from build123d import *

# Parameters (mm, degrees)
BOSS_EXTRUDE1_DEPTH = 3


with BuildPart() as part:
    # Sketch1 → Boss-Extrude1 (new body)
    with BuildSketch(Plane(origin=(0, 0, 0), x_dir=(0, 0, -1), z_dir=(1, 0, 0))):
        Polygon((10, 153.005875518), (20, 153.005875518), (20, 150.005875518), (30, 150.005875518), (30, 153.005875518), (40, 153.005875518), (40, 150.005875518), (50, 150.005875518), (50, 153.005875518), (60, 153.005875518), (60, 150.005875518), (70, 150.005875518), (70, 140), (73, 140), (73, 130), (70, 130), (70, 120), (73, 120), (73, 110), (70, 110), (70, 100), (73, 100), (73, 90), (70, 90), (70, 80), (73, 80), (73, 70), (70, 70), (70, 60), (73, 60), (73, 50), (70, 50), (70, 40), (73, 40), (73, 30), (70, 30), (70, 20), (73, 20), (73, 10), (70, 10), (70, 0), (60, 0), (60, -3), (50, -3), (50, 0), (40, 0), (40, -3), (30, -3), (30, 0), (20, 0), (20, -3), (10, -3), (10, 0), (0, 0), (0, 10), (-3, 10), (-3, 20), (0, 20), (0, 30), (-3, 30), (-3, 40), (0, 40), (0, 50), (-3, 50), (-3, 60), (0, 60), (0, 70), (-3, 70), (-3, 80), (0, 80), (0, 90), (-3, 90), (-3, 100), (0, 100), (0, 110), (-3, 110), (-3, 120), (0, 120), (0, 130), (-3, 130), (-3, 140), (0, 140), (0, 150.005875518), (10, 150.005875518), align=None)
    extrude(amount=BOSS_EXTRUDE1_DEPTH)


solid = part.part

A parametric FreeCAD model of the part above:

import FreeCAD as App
import Part
import Sketcher

V = App.Vector
Q = App.Units.Quantity


def add_polygon(sketch, points):
    """Adds a closed chain of lines whose ends are joined by coincident constraints."""
    first, n = sketch.GeometryCount, len(points)
    for a, b in zip(points, points[1:] + points[:1]):
        sketch.addGeometry(Part.LineSegment(App.Vector(*a, 0), App.Vector(*b, 0)), False)
    for i in range(n):
        sketch.addConstraint(Sketcher.Constraint("Coincident", first + i, 2, first + (i + 1) % n, 1))

doc = App.newDocument("Part")
body = doc.addObject("PartDesign::Body", "Body")

# Sketch on YZ plane
sketch1 = body.newObject("Sketcher::SketchObject", "Sketch")
sketch1.AttachmentSupport = (doc.getObject("YZ_Plane"), [""])
sketch1.MapMode = "FlatFace"
add_polygon(sketch1, [(153, -20), (153, -10), (150, -10), (150, 0), (140, 0), (140, 3), (130, 3), (130, 0), (120, 0), (120, 3), (110, 3), (110, 0), (100, 0), (100, 3), (90, 3), (90, 0), (80, 0), (80, 3), (70, 3), (70, 0), (60, 0), (60, 3), (50, 3), (50, 0), (40, 0), (40, 3), (30, 3), (30, 0), (20, 0), (20, 3), (10, 3), (10, 0), (0, 0), (0, -10), (-3, -10), (-3, -20), (0, -20), (0, -30), (-3, -30), (-3, -40), (0, -40), (0, -50), (-3, -50), (-3, -60), (0, -60), (0, -70), (10, -70), (10, -73), (20, -73), (20, -70), (30, -70), (30, -73), (40, -73), (40, -70), (50, -70), (50, -73), (60, -73), (60, -70), (70, -70), (70, -73), (80, -73), (80, -70), (90, -70), (90, -73), (100, -73), (100, -70), (110, -70), (110, -73), (120, -73), (120, -70), (130, -70), (130, -73), (140, -73), (140, -70), (150, -70), (150, -60), (153, -60), (153, -50), (150, -50), (150, -40), (153, -40), (153, -30), (150, -30), (150, -20)])  # lines 0-83
sketch1.addConstraint([
    Sketcher.Constraint("Vertical", 0),
    Sketcher.Constraint("Horizontal", 1),
    Sketcher.Constraint("Vertical", 2),
    Sketcher.Constraint("Horizontal", 3),
    Sketcher.Constraint("Vertical", 4),
    Sketcher.Constraint("Horizontal", 5),
    Sketcher.Constraint("Vertical", 6),
    Sketcher.Constraint("Horizontal", 7),
    Sketcher.Constraint("Vertical", 8),
    Sketcher.Constraint("Horizontal", 9),
    Sketcher.Constraint("Vertical", 10),
    Sketcher.Constraint("Horizontal", 11),
    Sketcher.Constraint("Vertical", 12),
    Sketcher.Constraint("Horizontal", 13),
    Sketcher.Constraint("Vertical", 14),
    Sketcher.Constraint("Horizontal", 15),
    Sketcher.Constraint("Vertical", 16),
    Sketcher.Constraint("Horizontal", 17),
    Sketcher.Constraint("Vertical", 18),
    Sketcher.Constraint("Horizontal", 19),
    Sketcher.Constraint("Vertical", 20),
    Sketcher.Constraint("Horizontal", 21),
    Sketcher.Constraint("Vertical", 22),
    Sketcher.Constraint("Horizontal", 23),
    Sketcher.Constraint("Vertical", 24),
    Sketcher.Constraint("Horizontal", 25),
    Sketcher.Constraint("Vertical", 26),
    Sketcher.Constraint("Horizontal", 27),
    Sketcher.Constraint("Vertical", 28),
    Sketcher.Constraint("Horizontal", 29),
    Sketcher.Constraint("Vertical", 30),
    Sketcher.Constraint("Horizontal", 31),
    Sketcher.Constraint("Vertical", 32),
    Sketcher.Constraint("Horizontal", 33),
    Sketcher.Constraint("Vertical", 34),
    Sketcher.Constraint("Horizontal", 35),
    Sketcher.Constraint("Vertical", 36),
    Sketcher.Constraint("Horizontal", 37),
    Sketcher.Constraint("Vertical", 38),
    Sketcher.Constraint("Horizontal", 39),
    Sketcher.Constraint("Vertical", 40),
    Sketcher.Constraint("Horizontal", 41),
    Sketcher.Constraint("Vertical", 42),
    Sketcher.Constraint("Horizontal", 43),
    Sketcher.Constraint("Vertical", 44),
    Sketcher.Constraint("Horizontal", 45),
    Sketcher.Constraint("Vertical", 46),
    Sketcher.Constraint("Horizontal", 47),
    Sketcher.Constraint("Vertical", 48),
    Sketcher.Constraint("Horizontal", 49),
    Sketcher.Constraint("Vertical", 50),
    Sketcher.Constraint("Horizontal", 51),
    Sketcher.Constraint("Vertical", 52),
    Sketcher.Constraint("Horizontal", 53),
    Sketcher.Constraint("Vertical", 54),
    Sketcher.Constraint("Horizontal", 55),
    Sketcher.Constraint("Vertical", 56),
    Sketcher.Constraint("Horizontal", 57),
    Sketcher.Constraint("Vertical", 58),
    Sketcher.Constraint("Horizontal", 59),
    Sketcher.Constraint("Vertical", 60),
    Sketcher.Constraint("Horizontal", 61),
    Sketcher.Constraint("Vertical", 62),
    Sketcher.Constraint("Horizontal", 63),
    Sketcher.Constraint("Vertical", 64),
    Sketcher.Constraint("Horizontal", 65),
    Sketcher.Constraint("Vertical", 66),
    Sketcher.Constraint("Horizontal", 67),
    Sketcher.Constraint("Vertical", 68),
    Sketcher.Constraint("Horizontal", 69),
    Sketcher.Constraint("Vertical", 70),
    Sketcher.Constraint("Horizontal", 71),
    Sketcher.Constraint("Vertical", 72),
    Sketcher.Constraint("Horizontal", 73),
    Sketcher.Constraint("Vertical", 74),
    Sketcher.Constraint("Horizontal", 75),
    Sketcher.Constraint("Vertical", 76),
    Sketcher.Constraint("Horizontal", 77),
    Sketcher.Constraint("Vertical", 78),
    Sketcher.Constraint("Horizontal", 79),
    Sketcher.Constraint("Vertical", 80),
    Sketcher.Constraint("Horizontal", 81),
    Sketcher.Constraint("Vertical", 82),
    Sketcher.Constraint("Horizontal", 83),
    Sketcher.Constraint("Coincident", 31, 2, -1, 1),
    Sketcher.Constraint("PointOnObject", 2, 2, -1),
    Sketcher.Constraint("PointOnObject", 6, 2, -1),
    Sketcher.Constraint("PointOnObject", 10, 2, -1),
    Sketcher.Constraint("PointOnObject", 14, 2, -1),
    Sketcher.Constraint("PointOnObject", 18, 2, -1),
    Sketcher.Constraint("PointOnObject", 22, 2, -1),
    Sketcher.Constraint("PointOnObject", 26, 2, -1),
    Sketcher.Constraint("PointOnObject", 35, 2, -2),
    Sketcher.Constraint("PointOnObject", 39, 2, -2),
    Sketcher.Constraint("PointOnObject", 43, 2, -2),
    Sketcher.Constraint("Horizontal", 5, 2, 8, 2),
    Sketcher.Constraint("Horizontal", 9, 2, 12, 2),
    Sketcher.Constraint("Horizontal", 13, 2, 16, 2),
    Sketcher.Constraint("Horizontal", 17, 2, 20, 2),
    Sketcher.Constraint("Horizontal", 21, 2, 24, 2),
    Sketcher.Constraint("Horizontal", 25, 2, 28, 2),
    Sketcher.Constraint("Horizontal", 1, 2, 32, 2),
    Sketcher.Constraint("Horizontal", 45, 2, 48, 2),
    Sketcher.Constraint("Horizontal", 47, 2, 50, 2),
    Sketcher.Constraint("Horizontal", 49, 2, 52, 2),
    Sketcher.Constraint("Horizontal", 51, 2, 54, 2),
    Sketcher.Constraint("Horizontal", 53, 2, 56, 2),
    Sketcher.Constraint("Horizontal", 55, 2, 58, 2),
    Sketcher.Constraint("Horizontal", 57, 2, 60, 2),
    Sketcher.Constraint("Horizontal", 59, 2, 62, 2),
    Sketcher.Constraint("Horizontal", 61, 2, 64, 2),
    Sketcher.Constraint("Horizontal", 63, 2, 66, 2),
    Sketcher.Constraint("Horizontal", 65, 2, 68, 2),
    Sketcher.Constraint("Horizontal", 67, 2, 70, 2),
    Sketcher.Constraint("Horizontal", 69, 2, 72, 2),
    Sketcher.Constraint("Horizontal", 43, 2, 74, 2),
    Sketcher.Constraint("Horizontal", 41, 2, 76, 2),
    Sketcher.Constraint("Horizontal", 39, 2, 78, 2),
    Sketcher.Constraint("Horizontal", 37, 2, 80, 2),
    Sketcher.Constraint("Horizontal", 35, 2, 82, 2),
    Sketcher.Constraint("Vertical", 34, 2, 37, 2),
    Sketcher.Constraint("Vertical", 38, 2, 41, 2),
    Sketcher.Constraint("Vertical", 30, 2, 45, 2),
    Sketcher.Constraint("Vertical", 28, 2, 47, 2),
    Sketcher.Constraint("Vertical", 26, 2, 49, 2),
    Sketcher.Constraint("Vertical", 24, 2, 51, 2),
    Sketcher.Constraint("Vertical", 22, 2, 53, 2),
    Sketcher.Constraint("Vertical", 20, 2, 55, 2),
    Sketcher.Constraint("Vertical", 18, 2, 57, 2),
    Sketcher.Constraint("Vertical", 16, 2, 59, 2),
    Sketcher.Constraint("Vertical", 14, 2, 61, 2),
    Sketcher.Constraint("Vertical", 12, 2, 63, 2),
    Sketcher.Constraint("Vertical", 10, 2, 65, 2),
    Sketcher.Constraint("Vertical", 8, 2, 67, 2),
    Sketcher.Constraint("Vertical", 6, 2, 69, 2),
    Sketcher.Constraint("Vertical", 4, 2, 71, 2),
    Sketcher.Constraint("Vertical", 2, 2, 73, 2),
    Sketcher.Constraint("Vertical", 0, 2, 75, 2),
    Sketcher.Constraint("Vertical", 74, 2, 77, 2),
    Sketcher.Constraint("Vertical", 76, 2, 79, 2),
    Sketcher.Constraint("Vertical", 78, 2, 81, 2),
    Sketcher.Constraint("Equal", 5, 7),
    Sketcher.Constraint("Equal", 7, 9),
    Sketcher.Constraint("Equal", 9, 11),
    Sketcher.Constraint("Equal", 11, 13),
    Sketcher.Constraint("Equal", 13, 15),
    Sketcher.Constraint("Equal", 15, 17),
    Sketcher.Constraint("Equal", 17, 19),
    Sketcher.Constraint("Equal", 19, 21),
    Sketcher.Constraint("Equal", 21, 23),
    Sketcher.Constraint("Equal", 23, 25),
    Sketcher.Constraint("Equal", 25, 27),
    Sketcher.Constraint("Equal", 27, 29),
    Sketcher.Constraint("Equal", 29, 31),
    Sketcher.Constraint("Equal", 1, 33),
    Sketcher.Constraint("Equal", 71, 0),
    Sketcher.Constraint("Equal", 0, 2),
    Sketcher.Constraint("Equal", 83, 4),
    Sketcher.Constraint("Equal", 34, 36),
    Sketcher.Constraint("Equal", 36, 38),
    Sketcher.Constraint("Equal", 38, 40),
    Sketcher.Constraint("Equal", 40, 42),
    Sketcher.Constraint("Equal", 42, 44),
    Sketcher.Constraint("Equal", 30, 46),
    Sketcher.Constraint("DistanceX", 1, 2, 1, 1, Q("3 mm")),
    Sketcher.Constraint("DistanceX", 5, 2, 5, 1, Q("10 mm")),
    Sketcher.Constraint("DistanceX", 3, 2, 3, 1, Q("10.005876 mm")),
])
pad1 = body.newObject("PartDesign::Pad", "Pad")
pad1.Profile = sketch1
pad1.Length = 3

doc.recompute()
